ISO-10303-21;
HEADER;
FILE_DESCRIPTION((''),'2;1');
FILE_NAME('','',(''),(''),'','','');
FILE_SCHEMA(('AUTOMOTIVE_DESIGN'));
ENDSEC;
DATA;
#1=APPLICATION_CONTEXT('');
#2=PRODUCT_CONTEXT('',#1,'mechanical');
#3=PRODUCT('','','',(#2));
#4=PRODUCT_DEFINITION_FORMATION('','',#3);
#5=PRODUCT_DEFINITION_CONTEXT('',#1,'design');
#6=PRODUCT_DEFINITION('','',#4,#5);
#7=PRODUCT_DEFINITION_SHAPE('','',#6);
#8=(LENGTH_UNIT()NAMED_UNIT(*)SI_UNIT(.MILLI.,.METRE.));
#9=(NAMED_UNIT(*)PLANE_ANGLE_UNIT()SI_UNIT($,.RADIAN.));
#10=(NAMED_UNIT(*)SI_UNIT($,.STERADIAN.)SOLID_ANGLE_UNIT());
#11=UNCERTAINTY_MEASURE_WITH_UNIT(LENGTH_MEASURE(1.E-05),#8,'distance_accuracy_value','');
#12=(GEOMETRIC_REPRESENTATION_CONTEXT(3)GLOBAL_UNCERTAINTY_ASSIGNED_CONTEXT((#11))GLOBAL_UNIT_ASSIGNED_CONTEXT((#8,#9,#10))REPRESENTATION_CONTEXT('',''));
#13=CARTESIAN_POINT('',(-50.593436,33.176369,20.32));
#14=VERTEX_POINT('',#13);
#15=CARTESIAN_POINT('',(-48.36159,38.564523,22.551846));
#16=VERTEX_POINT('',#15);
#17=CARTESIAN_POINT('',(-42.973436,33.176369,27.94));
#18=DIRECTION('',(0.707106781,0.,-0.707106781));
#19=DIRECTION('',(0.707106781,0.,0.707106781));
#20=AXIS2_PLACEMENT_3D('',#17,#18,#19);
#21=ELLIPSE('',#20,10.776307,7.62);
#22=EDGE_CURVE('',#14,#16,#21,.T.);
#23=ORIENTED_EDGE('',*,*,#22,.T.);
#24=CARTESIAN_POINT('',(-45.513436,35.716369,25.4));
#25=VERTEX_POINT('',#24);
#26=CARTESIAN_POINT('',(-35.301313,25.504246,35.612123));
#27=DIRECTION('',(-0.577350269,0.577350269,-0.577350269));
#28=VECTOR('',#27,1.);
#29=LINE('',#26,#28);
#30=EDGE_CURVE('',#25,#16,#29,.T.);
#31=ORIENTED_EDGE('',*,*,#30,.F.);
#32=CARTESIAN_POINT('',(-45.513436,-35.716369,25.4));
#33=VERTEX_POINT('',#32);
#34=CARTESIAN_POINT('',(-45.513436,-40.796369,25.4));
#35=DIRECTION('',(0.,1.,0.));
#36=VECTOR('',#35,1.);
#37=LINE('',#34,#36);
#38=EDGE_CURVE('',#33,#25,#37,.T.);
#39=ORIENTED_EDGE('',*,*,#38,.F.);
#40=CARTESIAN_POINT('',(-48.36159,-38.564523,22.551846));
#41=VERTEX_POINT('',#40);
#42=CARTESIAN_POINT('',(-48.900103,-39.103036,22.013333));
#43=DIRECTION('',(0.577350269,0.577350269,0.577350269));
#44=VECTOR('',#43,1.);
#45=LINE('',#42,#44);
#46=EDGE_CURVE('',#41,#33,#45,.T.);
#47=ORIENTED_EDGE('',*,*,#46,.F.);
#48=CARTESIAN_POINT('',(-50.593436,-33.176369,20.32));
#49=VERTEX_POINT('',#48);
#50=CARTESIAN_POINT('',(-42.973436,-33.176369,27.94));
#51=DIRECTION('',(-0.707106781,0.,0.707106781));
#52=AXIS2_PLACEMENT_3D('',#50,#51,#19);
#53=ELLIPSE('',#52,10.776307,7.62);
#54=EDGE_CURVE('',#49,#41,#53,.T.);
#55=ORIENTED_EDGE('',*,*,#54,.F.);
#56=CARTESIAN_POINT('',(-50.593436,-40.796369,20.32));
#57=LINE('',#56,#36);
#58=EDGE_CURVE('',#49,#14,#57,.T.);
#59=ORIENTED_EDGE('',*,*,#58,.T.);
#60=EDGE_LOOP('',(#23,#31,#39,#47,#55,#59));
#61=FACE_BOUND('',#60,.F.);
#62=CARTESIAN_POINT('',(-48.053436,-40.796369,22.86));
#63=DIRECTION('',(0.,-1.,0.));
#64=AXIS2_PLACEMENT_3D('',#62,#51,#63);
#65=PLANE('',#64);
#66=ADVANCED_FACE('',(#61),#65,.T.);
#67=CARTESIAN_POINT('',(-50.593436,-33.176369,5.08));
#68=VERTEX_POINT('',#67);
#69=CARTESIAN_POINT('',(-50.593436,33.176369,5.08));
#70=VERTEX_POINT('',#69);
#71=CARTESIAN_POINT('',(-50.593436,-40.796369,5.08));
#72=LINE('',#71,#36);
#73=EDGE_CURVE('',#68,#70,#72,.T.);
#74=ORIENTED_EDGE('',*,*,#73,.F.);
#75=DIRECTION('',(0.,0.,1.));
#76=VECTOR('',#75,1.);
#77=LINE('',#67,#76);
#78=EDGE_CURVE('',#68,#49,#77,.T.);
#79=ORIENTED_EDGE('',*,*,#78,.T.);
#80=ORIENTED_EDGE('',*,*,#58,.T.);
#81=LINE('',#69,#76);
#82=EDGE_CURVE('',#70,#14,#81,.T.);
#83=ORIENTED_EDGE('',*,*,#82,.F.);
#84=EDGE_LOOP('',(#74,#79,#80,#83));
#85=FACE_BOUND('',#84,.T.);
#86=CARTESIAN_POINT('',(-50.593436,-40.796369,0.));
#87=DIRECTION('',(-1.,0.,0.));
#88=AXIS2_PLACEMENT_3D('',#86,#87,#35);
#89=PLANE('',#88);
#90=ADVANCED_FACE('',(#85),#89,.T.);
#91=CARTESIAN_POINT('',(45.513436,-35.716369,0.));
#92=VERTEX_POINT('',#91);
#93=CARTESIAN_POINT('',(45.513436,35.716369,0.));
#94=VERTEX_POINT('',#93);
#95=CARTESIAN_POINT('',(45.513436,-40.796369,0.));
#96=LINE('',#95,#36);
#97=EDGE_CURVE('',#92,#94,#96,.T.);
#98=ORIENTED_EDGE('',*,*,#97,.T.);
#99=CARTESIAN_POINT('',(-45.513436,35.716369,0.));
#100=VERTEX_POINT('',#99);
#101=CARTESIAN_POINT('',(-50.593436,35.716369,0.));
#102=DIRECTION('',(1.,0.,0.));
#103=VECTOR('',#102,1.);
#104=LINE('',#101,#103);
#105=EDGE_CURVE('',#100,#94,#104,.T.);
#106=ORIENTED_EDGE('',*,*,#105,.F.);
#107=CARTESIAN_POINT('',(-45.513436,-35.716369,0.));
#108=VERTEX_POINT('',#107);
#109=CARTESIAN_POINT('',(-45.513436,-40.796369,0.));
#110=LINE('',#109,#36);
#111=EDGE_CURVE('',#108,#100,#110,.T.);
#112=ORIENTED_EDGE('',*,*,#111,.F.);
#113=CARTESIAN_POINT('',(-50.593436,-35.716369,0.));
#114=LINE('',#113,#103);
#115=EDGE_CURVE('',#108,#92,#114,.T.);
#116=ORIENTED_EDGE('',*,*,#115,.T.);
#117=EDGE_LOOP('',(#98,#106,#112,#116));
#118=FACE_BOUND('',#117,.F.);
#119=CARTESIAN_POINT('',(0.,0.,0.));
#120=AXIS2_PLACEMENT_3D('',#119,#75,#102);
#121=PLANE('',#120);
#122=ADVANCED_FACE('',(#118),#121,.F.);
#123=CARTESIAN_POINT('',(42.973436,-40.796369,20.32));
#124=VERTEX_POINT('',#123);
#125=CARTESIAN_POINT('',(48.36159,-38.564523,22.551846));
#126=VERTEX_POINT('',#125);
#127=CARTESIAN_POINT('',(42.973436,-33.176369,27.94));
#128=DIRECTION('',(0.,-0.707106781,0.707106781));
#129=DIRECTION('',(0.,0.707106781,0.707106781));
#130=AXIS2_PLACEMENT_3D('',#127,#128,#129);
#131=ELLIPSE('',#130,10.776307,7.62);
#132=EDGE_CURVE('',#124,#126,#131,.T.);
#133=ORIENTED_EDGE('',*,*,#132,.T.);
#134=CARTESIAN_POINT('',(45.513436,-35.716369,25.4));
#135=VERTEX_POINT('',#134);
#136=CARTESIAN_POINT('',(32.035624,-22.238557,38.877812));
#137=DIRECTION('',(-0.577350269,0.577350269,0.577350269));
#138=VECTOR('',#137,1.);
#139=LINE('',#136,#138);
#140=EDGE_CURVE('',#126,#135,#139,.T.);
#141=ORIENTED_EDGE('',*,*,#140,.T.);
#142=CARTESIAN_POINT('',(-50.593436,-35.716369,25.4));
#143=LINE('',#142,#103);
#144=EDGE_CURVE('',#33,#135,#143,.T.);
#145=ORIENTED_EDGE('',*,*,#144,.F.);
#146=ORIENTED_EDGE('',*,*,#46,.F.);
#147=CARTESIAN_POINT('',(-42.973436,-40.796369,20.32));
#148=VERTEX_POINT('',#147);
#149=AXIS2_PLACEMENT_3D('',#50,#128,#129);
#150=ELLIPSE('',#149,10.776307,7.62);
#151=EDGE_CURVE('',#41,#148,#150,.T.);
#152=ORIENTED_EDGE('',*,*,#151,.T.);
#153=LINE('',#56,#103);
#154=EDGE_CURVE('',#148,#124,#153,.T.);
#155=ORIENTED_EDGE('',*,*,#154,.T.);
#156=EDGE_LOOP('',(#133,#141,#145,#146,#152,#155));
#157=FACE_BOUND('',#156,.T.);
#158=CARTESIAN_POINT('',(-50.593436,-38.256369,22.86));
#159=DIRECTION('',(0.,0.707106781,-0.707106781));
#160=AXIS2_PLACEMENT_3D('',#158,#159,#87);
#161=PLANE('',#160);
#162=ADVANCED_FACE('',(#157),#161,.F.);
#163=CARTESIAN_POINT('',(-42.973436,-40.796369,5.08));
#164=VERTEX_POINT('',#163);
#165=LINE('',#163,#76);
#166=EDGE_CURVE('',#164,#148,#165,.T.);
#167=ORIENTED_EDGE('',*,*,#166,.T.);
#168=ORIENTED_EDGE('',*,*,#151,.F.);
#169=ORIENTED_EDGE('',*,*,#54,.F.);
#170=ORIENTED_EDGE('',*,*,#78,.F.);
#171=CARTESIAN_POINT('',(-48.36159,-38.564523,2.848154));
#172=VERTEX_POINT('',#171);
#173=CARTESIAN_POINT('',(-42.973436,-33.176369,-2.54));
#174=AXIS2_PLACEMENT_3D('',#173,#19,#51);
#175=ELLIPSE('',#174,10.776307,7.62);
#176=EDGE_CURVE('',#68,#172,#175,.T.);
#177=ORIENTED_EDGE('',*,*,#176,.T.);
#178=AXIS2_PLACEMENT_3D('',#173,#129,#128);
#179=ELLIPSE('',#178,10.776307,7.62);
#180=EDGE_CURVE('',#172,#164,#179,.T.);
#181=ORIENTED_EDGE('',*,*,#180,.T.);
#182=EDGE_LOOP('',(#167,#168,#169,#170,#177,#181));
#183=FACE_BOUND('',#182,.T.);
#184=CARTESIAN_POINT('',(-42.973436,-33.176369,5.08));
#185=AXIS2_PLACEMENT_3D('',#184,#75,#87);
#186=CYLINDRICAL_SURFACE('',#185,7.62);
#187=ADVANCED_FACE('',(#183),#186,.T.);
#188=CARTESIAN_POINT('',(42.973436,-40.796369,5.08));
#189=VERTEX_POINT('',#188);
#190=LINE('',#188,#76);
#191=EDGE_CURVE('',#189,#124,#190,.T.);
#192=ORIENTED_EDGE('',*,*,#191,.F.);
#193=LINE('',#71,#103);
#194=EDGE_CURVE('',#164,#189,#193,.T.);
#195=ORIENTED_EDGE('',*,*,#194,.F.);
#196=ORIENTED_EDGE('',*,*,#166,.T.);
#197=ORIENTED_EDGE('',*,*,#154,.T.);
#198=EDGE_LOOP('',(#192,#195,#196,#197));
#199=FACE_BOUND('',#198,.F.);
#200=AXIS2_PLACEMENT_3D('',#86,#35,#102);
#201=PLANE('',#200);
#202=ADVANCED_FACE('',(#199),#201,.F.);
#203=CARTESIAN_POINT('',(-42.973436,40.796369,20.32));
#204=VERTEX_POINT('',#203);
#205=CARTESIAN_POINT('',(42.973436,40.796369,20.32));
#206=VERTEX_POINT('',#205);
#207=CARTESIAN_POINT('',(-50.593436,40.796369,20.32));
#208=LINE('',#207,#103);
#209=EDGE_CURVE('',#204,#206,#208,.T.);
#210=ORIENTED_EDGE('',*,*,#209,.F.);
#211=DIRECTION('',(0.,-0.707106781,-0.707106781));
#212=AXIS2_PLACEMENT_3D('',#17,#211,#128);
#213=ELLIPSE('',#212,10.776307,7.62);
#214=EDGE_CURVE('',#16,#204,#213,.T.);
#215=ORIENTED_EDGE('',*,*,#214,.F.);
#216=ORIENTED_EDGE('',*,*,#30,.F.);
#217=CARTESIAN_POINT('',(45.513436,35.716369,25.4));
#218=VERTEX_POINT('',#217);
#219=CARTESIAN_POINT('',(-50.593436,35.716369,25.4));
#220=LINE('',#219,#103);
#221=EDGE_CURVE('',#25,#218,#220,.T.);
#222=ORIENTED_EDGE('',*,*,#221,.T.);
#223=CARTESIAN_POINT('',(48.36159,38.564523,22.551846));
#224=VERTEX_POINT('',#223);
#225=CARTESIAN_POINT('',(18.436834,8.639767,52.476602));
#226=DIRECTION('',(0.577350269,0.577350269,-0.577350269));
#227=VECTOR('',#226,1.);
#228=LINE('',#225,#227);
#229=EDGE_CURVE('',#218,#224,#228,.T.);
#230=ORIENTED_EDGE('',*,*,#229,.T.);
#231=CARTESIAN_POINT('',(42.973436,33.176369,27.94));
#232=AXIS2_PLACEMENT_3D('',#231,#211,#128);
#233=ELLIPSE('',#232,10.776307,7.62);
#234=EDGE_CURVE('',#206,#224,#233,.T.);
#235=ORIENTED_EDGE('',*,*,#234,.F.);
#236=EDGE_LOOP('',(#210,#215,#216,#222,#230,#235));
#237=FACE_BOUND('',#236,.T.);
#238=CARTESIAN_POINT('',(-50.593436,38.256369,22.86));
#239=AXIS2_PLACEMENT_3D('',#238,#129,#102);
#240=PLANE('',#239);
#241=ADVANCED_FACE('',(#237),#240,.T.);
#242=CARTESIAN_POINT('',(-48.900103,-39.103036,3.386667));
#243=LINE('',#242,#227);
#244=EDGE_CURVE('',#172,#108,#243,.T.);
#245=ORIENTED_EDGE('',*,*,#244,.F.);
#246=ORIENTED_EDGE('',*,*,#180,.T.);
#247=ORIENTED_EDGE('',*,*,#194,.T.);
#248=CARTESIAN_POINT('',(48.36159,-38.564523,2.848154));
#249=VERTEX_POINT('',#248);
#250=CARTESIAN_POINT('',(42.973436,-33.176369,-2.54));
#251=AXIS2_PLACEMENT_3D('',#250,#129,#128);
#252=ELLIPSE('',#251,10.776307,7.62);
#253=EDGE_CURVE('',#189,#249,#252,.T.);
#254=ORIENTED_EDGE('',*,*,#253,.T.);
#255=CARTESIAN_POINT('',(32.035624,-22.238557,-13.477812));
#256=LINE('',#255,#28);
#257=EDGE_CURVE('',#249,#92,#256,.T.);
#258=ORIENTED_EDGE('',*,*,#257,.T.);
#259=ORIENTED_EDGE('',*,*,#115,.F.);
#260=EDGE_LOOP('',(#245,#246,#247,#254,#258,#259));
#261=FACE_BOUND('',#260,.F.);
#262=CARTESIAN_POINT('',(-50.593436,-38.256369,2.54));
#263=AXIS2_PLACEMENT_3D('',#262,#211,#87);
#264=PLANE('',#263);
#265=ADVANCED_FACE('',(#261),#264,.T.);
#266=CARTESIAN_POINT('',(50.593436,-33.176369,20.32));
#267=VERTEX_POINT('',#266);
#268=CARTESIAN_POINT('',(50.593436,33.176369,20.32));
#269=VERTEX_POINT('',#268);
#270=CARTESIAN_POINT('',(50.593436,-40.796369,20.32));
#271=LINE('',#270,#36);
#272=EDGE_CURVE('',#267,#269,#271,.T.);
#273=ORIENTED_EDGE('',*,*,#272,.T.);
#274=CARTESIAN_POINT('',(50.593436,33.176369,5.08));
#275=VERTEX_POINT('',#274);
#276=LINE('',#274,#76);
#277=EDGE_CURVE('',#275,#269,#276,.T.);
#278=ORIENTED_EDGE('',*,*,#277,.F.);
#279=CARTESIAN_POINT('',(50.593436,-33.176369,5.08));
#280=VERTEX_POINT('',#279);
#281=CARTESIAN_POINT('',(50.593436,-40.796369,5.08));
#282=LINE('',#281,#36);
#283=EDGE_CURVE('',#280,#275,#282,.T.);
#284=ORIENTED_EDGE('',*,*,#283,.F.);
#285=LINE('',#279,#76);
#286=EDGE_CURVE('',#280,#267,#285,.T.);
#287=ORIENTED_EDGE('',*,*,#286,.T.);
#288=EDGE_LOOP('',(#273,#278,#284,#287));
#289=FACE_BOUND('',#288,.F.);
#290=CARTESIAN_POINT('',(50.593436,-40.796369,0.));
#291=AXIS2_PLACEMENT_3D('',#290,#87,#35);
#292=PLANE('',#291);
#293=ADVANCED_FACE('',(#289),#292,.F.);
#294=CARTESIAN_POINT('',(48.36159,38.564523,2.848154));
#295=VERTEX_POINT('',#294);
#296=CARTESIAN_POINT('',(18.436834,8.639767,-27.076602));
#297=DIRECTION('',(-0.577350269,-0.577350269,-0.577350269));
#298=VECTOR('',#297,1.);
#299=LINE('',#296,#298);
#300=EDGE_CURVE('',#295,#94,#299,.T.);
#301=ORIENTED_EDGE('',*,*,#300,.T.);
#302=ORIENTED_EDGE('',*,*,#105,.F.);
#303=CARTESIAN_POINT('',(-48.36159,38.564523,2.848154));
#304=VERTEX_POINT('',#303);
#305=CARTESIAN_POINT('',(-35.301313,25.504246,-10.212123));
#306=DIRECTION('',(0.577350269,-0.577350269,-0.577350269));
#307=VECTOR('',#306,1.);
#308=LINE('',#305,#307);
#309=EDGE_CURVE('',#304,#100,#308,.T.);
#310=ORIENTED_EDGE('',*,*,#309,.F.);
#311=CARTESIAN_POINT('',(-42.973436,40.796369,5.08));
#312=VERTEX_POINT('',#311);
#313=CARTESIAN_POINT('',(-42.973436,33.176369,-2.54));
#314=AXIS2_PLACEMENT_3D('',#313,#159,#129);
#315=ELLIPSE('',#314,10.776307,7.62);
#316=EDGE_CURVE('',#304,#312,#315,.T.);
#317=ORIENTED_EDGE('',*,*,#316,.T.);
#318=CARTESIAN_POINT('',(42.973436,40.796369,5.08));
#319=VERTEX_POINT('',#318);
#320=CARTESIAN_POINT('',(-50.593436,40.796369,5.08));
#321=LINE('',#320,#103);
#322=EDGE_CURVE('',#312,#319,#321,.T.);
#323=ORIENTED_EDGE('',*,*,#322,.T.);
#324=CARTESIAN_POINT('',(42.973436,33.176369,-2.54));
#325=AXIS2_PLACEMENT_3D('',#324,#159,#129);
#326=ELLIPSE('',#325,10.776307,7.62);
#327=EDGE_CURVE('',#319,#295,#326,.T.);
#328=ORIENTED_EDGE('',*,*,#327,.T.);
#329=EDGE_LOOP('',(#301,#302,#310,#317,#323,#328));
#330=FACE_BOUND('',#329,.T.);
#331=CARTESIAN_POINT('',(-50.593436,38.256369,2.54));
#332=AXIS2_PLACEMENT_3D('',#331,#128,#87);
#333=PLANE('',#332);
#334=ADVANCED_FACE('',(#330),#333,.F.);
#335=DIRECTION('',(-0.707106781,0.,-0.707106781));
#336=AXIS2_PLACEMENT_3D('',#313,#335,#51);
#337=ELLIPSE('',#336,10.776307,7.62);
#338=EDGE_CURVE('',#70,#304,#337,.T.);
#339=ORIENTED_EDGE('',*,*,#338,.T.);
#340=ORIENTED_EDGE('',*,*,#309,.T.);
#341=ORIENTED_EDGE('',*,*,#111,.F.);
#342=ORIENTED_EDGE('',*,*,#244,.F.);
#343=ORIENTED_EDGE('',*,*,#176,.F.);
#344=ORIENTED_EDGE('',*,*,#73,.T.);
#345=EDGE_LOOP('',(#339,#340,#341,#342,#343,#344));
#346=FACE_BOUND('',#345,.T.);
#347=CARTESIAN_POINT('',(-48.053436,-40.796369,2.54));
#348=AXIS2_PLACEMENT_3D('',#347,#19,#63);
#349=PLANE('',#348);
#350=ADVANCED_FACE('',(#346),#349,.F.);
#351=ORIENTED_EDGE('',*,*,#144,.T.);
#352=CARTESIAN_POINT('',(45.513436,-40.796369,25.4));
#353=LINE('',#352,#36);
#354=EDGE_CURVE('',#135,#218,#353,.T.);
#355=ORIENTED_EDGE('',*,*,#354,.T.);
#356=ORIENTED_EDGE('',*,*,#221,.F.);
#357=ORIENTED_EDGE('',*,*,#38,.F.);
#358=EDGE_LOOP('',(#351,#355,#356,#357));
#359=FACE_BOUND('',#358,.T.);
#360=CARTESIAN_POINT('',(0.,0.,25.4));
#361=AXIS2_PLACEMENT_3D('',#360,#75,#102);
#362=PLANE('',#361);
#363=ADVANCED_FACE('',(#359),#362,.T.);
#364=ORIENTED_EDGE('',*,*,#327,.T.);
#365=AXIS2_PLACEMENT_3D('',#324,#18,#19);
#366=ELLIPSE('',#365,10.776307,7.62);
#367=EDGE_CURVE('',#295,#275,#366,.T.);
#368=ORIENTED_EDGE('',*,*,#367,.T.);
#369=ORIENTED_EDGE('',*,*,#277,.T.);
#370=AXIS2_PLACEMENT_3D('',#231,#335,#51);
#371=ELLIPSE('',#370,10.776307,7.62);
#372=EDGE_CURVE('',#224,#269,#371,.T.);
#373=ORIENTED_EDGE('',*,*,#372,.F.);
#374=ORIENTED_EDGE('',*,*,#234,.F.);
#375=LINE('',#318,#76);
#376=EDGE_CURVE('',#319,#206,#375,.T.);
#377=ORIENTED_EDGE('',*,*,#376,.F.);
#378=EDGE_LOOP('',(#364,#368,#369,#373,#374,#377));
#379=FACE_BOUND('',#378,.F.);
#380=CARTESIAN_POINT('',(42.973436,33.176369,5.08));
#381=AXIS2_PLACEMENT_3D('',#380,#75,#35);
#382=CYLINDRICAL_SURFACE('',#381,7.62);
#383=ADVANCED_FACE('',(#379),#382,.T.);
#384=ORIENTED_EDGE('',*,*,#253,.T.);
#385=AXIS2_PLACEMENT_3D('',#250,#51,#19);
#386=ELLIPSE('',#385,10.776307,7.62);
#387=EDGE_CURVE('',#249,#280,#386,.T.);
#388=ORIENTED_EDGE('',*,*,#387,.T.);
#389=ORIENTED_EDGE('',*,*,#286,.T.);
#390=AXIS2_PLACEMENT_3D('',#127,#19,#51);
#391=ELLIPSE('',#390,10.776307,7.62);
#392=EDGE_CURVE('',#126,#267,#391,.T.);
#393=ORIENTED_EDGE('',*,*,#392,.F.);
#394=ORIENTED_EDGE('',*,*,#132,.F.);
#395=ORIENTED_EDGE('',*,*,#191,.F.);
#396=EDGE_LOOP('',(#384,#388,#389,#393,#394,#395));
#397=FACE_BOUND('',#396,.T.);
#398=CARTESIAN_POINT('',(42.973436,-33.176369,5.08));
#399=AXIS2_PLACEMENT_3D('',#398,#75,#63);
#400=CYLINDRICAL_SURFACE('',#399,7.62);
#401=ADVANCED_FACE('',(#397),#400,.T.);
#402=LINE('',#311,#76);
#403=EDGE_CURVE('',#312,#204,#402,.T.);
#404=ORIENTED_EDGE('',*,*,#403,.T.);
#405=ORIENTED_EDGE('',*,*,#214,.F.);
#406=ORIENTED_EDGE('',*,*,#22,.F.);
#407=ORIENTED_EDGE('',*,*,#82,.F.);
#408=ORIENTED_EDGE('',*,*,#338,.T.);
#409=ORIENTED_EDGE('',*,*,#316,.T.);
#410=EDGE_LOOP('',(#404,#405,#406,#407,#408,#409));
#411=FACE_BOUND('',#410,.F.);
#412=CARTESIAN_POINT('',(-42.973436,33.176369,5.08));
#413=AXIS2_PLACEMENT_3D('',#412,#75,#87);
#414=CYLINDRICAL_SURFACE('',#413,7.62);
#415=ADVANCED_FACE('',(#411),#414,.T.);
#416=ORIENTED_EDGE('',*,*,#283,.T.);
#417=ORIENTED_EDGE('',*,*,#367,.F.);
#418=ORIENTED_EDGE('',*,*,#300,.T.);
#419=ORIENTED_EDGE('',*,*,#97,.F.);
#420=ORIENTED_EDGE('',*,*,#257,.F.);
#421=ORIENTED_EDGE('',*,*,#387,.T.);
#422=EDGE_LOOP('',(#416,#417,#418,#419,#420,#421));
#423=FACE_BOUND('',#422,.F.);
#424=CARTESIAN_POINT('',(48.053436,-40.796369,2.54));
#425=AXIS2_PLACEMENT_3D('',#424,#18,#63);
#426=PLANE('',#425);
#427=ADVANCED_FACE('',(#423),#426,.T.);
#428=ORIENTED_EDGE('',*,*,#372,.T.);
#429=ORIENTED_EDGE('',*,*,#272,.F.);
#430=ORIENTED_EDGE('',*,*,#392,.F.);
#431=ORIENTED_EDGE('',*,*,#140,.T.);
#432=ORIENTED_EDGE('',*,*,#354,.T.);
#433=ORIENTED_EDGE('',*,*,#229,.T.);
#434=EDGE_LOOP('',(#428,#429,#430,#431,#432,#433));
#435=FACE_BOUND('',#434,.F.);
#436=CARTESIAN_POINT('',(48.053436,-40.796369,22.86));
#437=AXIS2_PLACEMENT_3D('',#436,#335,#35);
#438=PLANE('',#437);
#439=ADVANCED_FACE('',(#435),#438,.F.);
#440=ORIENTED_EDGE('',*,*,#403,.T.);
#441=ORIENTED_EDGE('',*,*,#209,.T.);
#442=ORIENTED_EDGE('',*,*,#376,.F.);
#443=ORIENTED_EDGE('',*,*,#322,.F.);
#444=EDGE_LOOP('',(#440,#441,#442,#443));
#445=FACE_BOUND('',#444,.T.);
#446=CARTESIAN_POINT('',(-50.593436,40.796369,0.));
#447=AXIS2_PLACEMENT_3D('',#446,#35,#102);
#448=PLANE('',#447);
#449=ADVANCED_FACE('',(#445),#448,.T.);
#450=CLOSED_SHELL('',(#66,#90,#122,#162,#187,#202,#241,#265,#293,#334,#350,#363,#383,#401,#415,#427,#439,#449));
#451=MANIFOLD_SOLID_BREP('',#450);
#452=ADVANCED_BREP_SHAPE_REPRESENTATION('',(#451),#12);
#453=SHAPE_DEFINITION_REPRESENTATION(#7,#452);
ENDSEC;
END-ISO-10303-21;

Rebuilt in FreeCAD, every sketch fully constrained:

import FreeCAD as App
import Part
import Sketcher
from FreeCAD import Vector
Q = App.Units.Quantity


def edges_at(feature, points):
    """Names of the edges that pass closest to the given points."""
    edges = feature.Shape.Edges
    near = lambda p: min(range(len(edges)), key=lambda i: edges[i].distToShape(Part.Vertex(*p))[0])
    return sorted({f"Edge{near(p) + 1}" for p in points})


def add_polygon(sketch, points):
    """Adds a closed chain of lines whose ends are joined by coincident constraints."""
    first, n = sketch.GeometryCount, len(points)
    for a, b in zip(points, points[1:] + points[:1]):
        sketch.addGeometry(Part.LineSegment(App.Vector(*a, 0), App.Vector(*b, 0)), False)
    for i in range(n):
        sketch.addConstraint(Sketcher.Constraint("Coincident", first + i, 2, first + (i + 1) % n, 1))

doc = App.newDocument("Part")
body = doc.addObject("PartDesign::Body", "Body")

sketch1 = body.newObject("Sketcher::SketchObject", "Sketch")
sketch1.AttachmentSupport = (doc.getObject("XY_Plane"), [""])
sketch1.MapMode = "FlatFace"
add_polygon(sketch1, [(-51, 41), (-51, -41), (51, -41), (51, 41)])
sketch1.addConstraint([
    Sketcher.Constraint("Vertical", 0),
    Sketcher.Constraint("Horizontal", 1),
    Sketcher.Constraint("Vertical", 2),
    Sketcher.Constraint("Horizontal", 3),
    Sketcher.Constraint("Symmetric", 0, 2, 2, 2, -1, 1),
    Sketcher.Constraint("DistanceX", 1, 1, 1, 2, 101.186872),
    Sketcher.Constraint("DistanceY", 0, 2, 0, 1, 81.592738),
])
pad1 = body.newObject("PartDesign::Pad", "Pad")
pad1.Profile = sketch1
pad1.Length = Q("1 in")
doc.recompute()

chamfer = body.newObject("PartDesign::Chamfer", "Chamfer")
chamfer.Base = (pad1, edges_at(pad1, [
    (0, -40.796, 0),
    (-50.593, 0, 0),
    (0, 40.796, 0),
    (50.593, 0, 0),
]))
chamfer.Size = Q("0.2 in")
doc.recompute()

chamfer2 = body.newObject("PartDesign::Chamfer", "Chamfer001")
chamfer2.Base = (chamfer, edges_at(chamfer, [
    (0, -40.796, 25.4),
    (50.593, 0, 25.4),
    (0, 40.796, 25.4),
    (-50.593, 0, 25.4),
]))
chamfer2.Size = Q("0.2 in")
doc.recompute()

fillet = body.newObject("PartDesign::Fillet", "Fillet")
fillet.Base = (chamfer2, edges_at(chamfer2, [
    (-50.593, -40.796, 12.7),
    (-50.593, 40.796, 12.7),
    (50.593, 40.796, 12.7),
    (50.593, -40.796, 12.7),
]))
fillet.Radius = Q("0.3 in")

doc.recompute()
